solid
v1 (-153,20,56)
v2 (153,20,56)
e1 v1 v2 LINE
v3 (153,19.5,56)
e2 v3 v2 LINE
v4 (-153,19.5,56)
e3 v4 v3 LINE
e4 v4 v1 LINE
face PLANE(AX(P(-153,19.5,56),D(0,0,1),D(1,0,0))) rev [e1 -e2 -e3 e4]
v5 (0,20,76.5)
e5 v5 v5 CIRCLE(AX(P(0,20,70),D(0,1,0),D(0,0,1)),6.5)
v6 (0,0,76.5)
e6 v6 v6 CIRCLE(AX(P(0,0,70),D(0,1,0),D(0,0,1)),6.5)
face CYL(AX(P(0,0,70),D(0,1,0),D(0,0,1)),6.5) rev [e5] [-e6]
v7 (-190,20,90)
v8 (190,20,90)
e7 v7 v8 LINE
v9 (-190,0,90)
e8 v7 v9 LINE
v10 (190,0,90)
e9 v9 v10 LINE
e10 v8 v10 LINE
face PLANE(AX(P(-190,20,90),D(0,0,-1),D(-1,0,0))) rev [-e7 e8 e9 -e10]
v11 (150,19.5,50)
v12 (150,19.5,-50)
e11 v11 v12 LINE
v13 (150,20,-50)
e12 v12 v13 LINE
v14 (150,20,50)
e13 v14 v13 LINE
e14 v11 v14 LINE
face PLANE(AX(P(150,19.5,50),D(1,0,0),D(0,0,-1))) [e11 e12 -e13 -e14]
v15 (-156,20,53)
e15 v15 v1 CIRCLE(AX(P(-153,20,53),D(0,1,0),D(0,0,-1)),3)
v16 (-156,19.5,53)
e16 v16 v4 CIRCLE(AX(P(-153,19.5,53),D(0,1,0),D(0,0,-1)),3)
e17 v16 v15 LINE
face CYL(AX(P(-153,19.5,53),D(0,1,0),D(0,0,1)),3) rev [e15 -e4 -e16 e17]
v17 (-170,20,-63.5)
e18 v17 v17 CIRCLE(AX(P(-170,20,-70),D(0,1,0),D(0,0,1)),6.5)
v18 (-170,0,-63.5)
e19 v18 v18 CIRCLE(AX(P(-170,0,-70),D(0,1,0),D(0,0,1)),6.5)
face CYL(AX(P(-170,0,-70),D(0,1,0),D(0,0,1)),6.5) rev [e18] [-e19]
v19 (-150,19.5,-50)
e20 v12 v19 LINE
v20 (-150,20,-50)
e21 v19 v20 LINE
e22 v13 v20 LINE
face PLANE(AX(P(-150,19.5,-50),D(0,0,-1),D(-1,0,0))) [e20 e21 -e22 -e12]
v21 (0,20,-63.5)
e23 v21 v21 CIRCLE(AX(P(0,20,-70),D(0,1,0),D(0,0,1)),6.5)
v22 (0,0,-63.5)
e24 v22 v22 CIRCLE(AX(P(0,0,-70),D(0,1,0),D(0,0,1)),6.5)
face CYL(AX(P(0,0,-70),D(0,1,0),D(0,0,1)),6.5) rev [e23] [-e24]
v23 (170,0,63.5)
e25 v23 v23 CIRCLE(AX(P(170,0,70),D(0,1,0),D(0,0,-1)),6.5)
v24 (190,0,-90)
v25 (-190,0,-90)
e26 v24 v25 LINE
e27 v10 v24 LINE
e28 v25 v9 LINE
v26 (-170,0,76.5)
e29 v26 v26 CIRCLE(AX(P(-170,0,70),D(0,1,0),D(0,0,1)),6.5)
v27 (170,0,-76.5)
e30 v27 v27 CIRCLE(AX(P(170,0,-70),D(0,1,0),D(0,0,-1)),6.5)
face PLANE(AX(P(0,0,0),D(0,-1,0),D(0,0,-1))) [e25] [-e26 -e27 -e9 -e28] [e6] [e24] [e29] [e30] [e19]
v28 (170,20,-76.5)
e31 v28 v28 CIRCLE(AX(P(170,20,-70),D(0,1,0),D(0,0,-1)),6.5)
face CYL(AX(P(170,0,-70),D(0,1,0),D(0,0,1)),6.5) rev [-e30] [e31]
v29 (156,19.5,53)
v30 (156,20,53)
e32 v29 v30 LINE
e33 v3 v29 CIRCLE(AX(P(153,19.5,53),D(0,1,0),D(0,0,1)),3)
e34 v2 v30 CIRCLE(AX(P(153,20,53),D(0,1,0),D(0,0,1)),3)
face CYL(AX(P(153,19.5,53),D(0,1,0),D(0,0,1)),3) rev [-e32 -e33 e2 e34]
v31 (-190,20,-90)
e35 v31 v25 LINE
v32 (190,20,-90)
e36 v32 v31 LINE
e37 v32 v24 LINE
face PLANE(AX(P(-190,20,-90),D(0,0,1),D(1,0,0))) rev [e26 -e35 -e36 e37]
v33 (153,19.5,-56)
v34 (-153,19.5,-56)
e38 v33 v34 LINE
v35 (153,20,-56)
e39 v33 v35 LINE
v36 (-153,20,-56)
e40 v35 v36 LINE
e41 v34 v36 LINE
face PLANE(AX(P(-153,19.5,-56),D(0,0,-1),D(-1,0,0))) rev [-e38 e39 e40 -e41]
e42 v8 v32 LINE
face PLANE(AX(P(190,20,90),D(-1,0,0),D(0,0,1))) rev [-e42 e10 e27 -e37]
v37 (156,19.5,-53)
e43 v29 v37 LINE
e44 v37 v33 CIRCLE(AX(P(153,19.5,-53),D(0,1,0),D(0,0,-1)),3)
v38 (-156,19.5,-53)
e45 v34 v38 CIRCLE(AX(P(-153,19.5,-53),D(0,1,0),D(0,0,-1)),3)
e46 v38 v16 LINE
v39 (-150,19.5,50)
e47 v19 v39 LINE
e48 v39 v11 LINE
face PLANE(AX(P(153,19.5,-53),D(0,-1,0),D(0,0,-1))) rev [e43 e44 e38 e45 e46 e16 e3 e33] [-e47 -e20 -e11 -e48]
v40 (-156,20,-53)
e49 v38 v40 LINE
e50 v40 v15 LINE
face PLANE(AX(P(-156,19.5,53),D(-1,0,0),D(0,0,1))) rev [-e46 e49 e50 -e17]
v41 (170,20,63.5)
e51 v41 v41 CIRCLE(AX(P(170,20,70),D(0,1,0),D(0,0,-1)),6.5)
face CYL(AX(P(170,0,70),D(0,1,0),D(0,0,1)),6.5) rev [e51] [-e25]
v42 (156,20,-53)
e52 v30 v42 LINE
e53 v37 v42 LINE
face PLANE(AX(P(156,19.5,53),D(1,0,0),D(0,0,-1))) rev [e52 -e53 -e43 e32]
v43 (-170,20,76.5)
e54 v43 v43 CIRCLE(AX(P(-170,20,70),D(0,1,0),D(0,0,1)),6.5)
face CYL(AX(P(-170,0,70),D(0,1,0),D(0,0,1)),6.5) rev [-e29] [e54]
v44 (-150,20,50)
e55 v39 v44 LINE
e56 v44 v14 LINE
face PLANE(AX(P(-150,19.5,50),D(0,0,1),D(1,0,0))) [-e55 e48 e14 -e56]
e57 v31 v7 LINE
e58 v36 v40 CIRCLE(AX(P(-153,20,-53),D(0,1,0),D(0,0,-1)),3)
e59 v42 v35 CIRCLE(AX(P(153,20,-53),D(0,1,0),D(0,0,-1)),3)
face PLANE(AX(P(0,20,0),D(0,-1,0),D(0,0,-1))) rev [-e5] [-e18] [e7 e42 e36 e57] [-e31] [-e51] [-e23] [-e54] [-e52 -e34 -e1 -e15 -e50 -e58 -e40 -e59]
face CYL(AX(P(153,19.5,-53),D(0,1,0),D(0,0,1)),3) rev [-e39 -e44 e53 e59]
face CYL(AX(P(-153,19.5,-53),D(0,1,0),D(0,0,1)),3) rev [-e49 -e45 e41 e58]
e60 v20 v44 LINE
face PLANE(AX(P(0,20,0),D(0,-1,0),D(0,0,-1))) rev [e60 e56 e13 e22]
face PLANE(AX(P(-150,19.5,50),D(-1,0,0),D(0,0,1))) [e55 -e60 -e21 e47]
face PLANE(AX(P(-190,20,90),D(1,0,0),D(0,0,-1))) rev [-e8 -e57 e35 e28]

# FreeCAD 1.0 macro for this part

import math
import FreeCAD as App
import Part
import Sketcher
Q = App.Units.Quantity


def add_polygon(sketch, points):
    """Adds a closed chain of lines whose ends are joined by coincident constraints."""
    first, n = sketch.GeometryCount, len(points)
    for a, b in zip(points, points[1:] + points[:1]):
        sketch.addGeometry(Part.LineSegment(App.Vector(*a, 0), App.Vector(*b, 0)), False)
    for i in range(n):
        sketch.addConstraint(Sketcher.Constraint("Coincident", first + i, 2, first + (i + 1) % n, 1))

doc = App.newDocument("Part")
body = doc.addObject("PartDesign::Body", "Body")

sketch1 = body.newObject("Sketcher::SketchObject", "Sketch")
sketch1.AttachmentSupport = (doc.getObject("XZ_Plane"), [""])
sketch1.MapMode = "FlatFace"
add_polygon(sketch1, [(-190, -90), (-190, 90), (190, 90), (190, -90)])
sketch1.addConstraint(Sketcher.Constraint("Vertical", 0))
sketch1.addConstraint(Sketcher.Constraint("Horizontal", 1))
sketch1.addConstraint(Sketcher.Constraint("Vertical", 2))
sketch1.addConstraint(Sketcher.Constraint("Horizontal", 3))
sketch1.addConstraint(Sketcher.Constraint("Symmetric", 0, 2, 2, 2, -1, 1))
sketch1.addConstraint(Sketcher.Constraint("DistanceX", 1, 1, 1, 2, Q("380 mm")))
sketch1.addConstraint(Sketcher.Constraint("DistanceY", 0, 1, 0, 2, Q("180 mm")))
pad1 = body.newObject("PartDesign::Pad", "Pad")
pad1.Profile = sketch1
pad1.Length = 20
pad1.Reversed = True

sketch2 = body.newObject("Sketcher::SketchObject", "Sketch001")
sketch2.AttachmentSupport = (doc.getObject("XZ_Plane"), [""])
sketch2.MapMode = "FlatFace"
sketch2.AttachmentOffset = App.Placement(App.Vector(0, 0, -20), App.Rotation())
sketch2.addGeometry(Part.Circle(App.Vector(-170, -70, 0), App.Vector(0, 0, 1), 6), False)
sketch2.addGeometry(Part.Circle(App.Vector(-170, 70, 0), App.Vector(0, 0, 1), 6), False)
sketch2.addGeometry(Part.Circle(App.Vector(0, 70, 0), App.Vector(0, 0, 1), 6), False)
sketch2.addGeometry(Part.Circle(App.Vector(0, -70, 0), App.Vector(0, 0, 1), 6), False)
sketch2.addGeometry(Part.Circle(App.Vector(170, 70, 0), App.Vector(0, 0, 1), 6), False)
sketch2.addGeometry(Part.Circle(App.Vector(170, -70, 0), App.Vector(0, 0, 1), 6), False)
sketch2.addConstraint(Sketcher.Constraint("Equal", 0, 1))
sketch2.addConstraint(Sketcher.Constraint("Equal", 1, 2))
sketch2.addConstraint(Sketcher.Constraint("Equal", 2, 3))
sketch2.addConstraint(Sketcher.Constraint("Equal", 3, 4))
sketch2.addConstraint(Sketcher.Constraint("Equal", 4, 5))
sketch2.addConstraint(Sketcher.Constraint("Symmetric", 2, 3, 3, 3, -1, 1))
sketch2.addConstraint(Sketcher.Constraint("Symmetric", 0, 3, 4, 3, -1, 1))
sketch2.addConstraint(Sketcher.Constraint("Symmetric", 1, 3, 5, 3, -1, 1))
sketch2.addConstraint(Sketcher.Constraint("Symmetric", 1, 3, 4, 3, -2))
sketch2.addConstraint(Sketcher.Constraint("PointOnObject", 2, 3, -2))
sketch2.addConstraint(Sketcher.Constraint("Horizontal", 1, 3, 2, 3))
sketch2.addConstraint(Sketcher.Constraint("Diameter", 0, Q("13 mm")))
sketch2.addConstraint(Sketcher.Constraint("DistanceX", 0, 3, -1, 1, Q("170 mm")))
sketch2.addConstraint(Sketcher.Constraint("DistanceY", 0, 3, -1, 1, Q("70 mm")))
pocket1 = body.newObject("PartDesign::Pocket", "Pocket")
pocket1.Profile = sketch2
pocket1.Type = "ThroughAll"
pocket1.Reversed = True

sketch3 = body.newObject("Sketcher::SketchObject", "Sketch002")
sketch3.AttachmentSupport = (doc.getObject("XZ_Plane"), [""])
sketch3.MapMode = "FlatFace"
sketch3.AttachmentOffset = App.Placement(App.Vector(0, 0, -20), App.Rotation())
sketch3.addGeometry(Part.LineSegment(App.Vector(-153, 56, 0), App.Vector(153, 56, 0)), False)
sketch3.addGeometry(Part.ArcOfCircle(Part.Circle(App.Vector(153, 53, 0), App.Vector(0, 0, 1), 3), math.radians(0), math.radians(90)), False)
sketch3.addGeometry(Part.LineSegment(App.Vector(156, 53, 0), App.Vector(156, -53, 0)), False)
sketch3.addGeometry(Part.ArcOfCircle(Part.Circle(App.Vector(153, -53, 0), App.Vector(0, 0, 1), 3), math.radians(-90), math.radians(0)), False)
sketch3.addGeometry(Part.LineSegment(App.Vector(153, -56, 0), App.Vector(-153, -56, 0)), False)
sketch3.addGeometry(Part.ArcOfCircle(Part.Circle(App.Vector(-153, -53, 0), App.Vector(0, 0, 1), 3), math.radians(180), math.radians(270)), False)
sketch3.addGeometry(Part.LineSegment(App.Vector(-156, -53, 0), App.Vector(-156, 53, 0)), False)
sketch3.addGeometry(Part.ArcOfCircle(Part.Circle(App.Vector(-153, 53, 0), App.Vector(0, 0, 1), 3), math.radians(90), math.radians(180)), False)
add_polygon(sketch3, [(150, 50), (-150, 50), (-150, -50), (150, -50)])
sketch3.addConstraint(Sketcher.Constraint("Tangent", 0, 2, 1, 2))
sketch3.addConstraint(Sketcher.Constraint("Tangent", 1, 1, 2, 1))
sketch3.addConstraint(Sketcher.Constraint("Tangent", 2, 2, 3, 2))
sketch3.addConstraint(Sketcher.Constraint("Tangent", 3, 1, 4, 1))
sketch3.addConstraint(Sketcher.Constraint("Tangent", 4, 2, 5, 2))
sketch3.addConstraint(Sketcher.Constraint("Tangent", 5, 1, 6, 1))
sketch3.addConstraint(Sketcher.Constraint("Tangent", 6, 2, 7, 2))
sketch3.addConstraint(Sketcher.Constraint("Tangent", 7, 1, 0, 1))
sketch3.addConstraint(Sketcher.Constraint("Horizontal", 0))
sketch3.addConstraint(Sketcher.Constraint("Vertical", 2))
sketch3.addConstraint(Sketcher.Constraint("Horizontal", 4))
sketch3.addConstraint(Sketcher.Constraint("Vertical", 6))
sketch3.addConstraint(Sketcher.Constraint("Horizontal", 8))
sketch3.addConstraint(Sketcher.Constraint("Vertical", 9))
sketch3.addConstraint(Sketcher.Constraint("Horizontal", 10))
sketch3.addConstraint(Sketcher.Constraint("Vertical", 11))
sketch3.addConstraint(Sketcher.Constraint("Equal", 1, 3))
sketch3.addConstraint(Sketcher.Constraint("Equal", 3, 5))
sketch3.addConstraint(Sketcher.Constraint("Equal", 5, 7))
sketch3.addConstraint(Sketcher.Constraint("Symmetric", 1, 3, 5, 3, -1, 1))
sketch3.addConstraint(Sketcher.Constraint("Symmetric", 8, 2, 10, 2, -1, 1))
sketch3.addConstraint(Sketcher.Constraint("Radius", 1, Q("3 mm")))
sketch3.addConstraint(Sketcher.Constraint("DistanceX", 0, 1, 0, 2, Q("306 mm")))
sketch3.addConstraint(Sketcher.Constraint("DistanceX", 8, 2, 8, 1, Q("300 mm")))
sketch3.addConstraint(Sketcher.Constraint("DistanceY", 2, 2, 2, 1, Q("106 mm")))
sketch3.addConstraint(Sketcher.Constraint("DistanceY", 9, 2, 9, 1, Q("100 mm")))
pocket2 = body.newObject("PartDesign::Pocket", "Pocket001")
pocket2.Profile = sketch3
pocket2.Length = 0.5
pocket2.Reversed = True

doc.recompute()
